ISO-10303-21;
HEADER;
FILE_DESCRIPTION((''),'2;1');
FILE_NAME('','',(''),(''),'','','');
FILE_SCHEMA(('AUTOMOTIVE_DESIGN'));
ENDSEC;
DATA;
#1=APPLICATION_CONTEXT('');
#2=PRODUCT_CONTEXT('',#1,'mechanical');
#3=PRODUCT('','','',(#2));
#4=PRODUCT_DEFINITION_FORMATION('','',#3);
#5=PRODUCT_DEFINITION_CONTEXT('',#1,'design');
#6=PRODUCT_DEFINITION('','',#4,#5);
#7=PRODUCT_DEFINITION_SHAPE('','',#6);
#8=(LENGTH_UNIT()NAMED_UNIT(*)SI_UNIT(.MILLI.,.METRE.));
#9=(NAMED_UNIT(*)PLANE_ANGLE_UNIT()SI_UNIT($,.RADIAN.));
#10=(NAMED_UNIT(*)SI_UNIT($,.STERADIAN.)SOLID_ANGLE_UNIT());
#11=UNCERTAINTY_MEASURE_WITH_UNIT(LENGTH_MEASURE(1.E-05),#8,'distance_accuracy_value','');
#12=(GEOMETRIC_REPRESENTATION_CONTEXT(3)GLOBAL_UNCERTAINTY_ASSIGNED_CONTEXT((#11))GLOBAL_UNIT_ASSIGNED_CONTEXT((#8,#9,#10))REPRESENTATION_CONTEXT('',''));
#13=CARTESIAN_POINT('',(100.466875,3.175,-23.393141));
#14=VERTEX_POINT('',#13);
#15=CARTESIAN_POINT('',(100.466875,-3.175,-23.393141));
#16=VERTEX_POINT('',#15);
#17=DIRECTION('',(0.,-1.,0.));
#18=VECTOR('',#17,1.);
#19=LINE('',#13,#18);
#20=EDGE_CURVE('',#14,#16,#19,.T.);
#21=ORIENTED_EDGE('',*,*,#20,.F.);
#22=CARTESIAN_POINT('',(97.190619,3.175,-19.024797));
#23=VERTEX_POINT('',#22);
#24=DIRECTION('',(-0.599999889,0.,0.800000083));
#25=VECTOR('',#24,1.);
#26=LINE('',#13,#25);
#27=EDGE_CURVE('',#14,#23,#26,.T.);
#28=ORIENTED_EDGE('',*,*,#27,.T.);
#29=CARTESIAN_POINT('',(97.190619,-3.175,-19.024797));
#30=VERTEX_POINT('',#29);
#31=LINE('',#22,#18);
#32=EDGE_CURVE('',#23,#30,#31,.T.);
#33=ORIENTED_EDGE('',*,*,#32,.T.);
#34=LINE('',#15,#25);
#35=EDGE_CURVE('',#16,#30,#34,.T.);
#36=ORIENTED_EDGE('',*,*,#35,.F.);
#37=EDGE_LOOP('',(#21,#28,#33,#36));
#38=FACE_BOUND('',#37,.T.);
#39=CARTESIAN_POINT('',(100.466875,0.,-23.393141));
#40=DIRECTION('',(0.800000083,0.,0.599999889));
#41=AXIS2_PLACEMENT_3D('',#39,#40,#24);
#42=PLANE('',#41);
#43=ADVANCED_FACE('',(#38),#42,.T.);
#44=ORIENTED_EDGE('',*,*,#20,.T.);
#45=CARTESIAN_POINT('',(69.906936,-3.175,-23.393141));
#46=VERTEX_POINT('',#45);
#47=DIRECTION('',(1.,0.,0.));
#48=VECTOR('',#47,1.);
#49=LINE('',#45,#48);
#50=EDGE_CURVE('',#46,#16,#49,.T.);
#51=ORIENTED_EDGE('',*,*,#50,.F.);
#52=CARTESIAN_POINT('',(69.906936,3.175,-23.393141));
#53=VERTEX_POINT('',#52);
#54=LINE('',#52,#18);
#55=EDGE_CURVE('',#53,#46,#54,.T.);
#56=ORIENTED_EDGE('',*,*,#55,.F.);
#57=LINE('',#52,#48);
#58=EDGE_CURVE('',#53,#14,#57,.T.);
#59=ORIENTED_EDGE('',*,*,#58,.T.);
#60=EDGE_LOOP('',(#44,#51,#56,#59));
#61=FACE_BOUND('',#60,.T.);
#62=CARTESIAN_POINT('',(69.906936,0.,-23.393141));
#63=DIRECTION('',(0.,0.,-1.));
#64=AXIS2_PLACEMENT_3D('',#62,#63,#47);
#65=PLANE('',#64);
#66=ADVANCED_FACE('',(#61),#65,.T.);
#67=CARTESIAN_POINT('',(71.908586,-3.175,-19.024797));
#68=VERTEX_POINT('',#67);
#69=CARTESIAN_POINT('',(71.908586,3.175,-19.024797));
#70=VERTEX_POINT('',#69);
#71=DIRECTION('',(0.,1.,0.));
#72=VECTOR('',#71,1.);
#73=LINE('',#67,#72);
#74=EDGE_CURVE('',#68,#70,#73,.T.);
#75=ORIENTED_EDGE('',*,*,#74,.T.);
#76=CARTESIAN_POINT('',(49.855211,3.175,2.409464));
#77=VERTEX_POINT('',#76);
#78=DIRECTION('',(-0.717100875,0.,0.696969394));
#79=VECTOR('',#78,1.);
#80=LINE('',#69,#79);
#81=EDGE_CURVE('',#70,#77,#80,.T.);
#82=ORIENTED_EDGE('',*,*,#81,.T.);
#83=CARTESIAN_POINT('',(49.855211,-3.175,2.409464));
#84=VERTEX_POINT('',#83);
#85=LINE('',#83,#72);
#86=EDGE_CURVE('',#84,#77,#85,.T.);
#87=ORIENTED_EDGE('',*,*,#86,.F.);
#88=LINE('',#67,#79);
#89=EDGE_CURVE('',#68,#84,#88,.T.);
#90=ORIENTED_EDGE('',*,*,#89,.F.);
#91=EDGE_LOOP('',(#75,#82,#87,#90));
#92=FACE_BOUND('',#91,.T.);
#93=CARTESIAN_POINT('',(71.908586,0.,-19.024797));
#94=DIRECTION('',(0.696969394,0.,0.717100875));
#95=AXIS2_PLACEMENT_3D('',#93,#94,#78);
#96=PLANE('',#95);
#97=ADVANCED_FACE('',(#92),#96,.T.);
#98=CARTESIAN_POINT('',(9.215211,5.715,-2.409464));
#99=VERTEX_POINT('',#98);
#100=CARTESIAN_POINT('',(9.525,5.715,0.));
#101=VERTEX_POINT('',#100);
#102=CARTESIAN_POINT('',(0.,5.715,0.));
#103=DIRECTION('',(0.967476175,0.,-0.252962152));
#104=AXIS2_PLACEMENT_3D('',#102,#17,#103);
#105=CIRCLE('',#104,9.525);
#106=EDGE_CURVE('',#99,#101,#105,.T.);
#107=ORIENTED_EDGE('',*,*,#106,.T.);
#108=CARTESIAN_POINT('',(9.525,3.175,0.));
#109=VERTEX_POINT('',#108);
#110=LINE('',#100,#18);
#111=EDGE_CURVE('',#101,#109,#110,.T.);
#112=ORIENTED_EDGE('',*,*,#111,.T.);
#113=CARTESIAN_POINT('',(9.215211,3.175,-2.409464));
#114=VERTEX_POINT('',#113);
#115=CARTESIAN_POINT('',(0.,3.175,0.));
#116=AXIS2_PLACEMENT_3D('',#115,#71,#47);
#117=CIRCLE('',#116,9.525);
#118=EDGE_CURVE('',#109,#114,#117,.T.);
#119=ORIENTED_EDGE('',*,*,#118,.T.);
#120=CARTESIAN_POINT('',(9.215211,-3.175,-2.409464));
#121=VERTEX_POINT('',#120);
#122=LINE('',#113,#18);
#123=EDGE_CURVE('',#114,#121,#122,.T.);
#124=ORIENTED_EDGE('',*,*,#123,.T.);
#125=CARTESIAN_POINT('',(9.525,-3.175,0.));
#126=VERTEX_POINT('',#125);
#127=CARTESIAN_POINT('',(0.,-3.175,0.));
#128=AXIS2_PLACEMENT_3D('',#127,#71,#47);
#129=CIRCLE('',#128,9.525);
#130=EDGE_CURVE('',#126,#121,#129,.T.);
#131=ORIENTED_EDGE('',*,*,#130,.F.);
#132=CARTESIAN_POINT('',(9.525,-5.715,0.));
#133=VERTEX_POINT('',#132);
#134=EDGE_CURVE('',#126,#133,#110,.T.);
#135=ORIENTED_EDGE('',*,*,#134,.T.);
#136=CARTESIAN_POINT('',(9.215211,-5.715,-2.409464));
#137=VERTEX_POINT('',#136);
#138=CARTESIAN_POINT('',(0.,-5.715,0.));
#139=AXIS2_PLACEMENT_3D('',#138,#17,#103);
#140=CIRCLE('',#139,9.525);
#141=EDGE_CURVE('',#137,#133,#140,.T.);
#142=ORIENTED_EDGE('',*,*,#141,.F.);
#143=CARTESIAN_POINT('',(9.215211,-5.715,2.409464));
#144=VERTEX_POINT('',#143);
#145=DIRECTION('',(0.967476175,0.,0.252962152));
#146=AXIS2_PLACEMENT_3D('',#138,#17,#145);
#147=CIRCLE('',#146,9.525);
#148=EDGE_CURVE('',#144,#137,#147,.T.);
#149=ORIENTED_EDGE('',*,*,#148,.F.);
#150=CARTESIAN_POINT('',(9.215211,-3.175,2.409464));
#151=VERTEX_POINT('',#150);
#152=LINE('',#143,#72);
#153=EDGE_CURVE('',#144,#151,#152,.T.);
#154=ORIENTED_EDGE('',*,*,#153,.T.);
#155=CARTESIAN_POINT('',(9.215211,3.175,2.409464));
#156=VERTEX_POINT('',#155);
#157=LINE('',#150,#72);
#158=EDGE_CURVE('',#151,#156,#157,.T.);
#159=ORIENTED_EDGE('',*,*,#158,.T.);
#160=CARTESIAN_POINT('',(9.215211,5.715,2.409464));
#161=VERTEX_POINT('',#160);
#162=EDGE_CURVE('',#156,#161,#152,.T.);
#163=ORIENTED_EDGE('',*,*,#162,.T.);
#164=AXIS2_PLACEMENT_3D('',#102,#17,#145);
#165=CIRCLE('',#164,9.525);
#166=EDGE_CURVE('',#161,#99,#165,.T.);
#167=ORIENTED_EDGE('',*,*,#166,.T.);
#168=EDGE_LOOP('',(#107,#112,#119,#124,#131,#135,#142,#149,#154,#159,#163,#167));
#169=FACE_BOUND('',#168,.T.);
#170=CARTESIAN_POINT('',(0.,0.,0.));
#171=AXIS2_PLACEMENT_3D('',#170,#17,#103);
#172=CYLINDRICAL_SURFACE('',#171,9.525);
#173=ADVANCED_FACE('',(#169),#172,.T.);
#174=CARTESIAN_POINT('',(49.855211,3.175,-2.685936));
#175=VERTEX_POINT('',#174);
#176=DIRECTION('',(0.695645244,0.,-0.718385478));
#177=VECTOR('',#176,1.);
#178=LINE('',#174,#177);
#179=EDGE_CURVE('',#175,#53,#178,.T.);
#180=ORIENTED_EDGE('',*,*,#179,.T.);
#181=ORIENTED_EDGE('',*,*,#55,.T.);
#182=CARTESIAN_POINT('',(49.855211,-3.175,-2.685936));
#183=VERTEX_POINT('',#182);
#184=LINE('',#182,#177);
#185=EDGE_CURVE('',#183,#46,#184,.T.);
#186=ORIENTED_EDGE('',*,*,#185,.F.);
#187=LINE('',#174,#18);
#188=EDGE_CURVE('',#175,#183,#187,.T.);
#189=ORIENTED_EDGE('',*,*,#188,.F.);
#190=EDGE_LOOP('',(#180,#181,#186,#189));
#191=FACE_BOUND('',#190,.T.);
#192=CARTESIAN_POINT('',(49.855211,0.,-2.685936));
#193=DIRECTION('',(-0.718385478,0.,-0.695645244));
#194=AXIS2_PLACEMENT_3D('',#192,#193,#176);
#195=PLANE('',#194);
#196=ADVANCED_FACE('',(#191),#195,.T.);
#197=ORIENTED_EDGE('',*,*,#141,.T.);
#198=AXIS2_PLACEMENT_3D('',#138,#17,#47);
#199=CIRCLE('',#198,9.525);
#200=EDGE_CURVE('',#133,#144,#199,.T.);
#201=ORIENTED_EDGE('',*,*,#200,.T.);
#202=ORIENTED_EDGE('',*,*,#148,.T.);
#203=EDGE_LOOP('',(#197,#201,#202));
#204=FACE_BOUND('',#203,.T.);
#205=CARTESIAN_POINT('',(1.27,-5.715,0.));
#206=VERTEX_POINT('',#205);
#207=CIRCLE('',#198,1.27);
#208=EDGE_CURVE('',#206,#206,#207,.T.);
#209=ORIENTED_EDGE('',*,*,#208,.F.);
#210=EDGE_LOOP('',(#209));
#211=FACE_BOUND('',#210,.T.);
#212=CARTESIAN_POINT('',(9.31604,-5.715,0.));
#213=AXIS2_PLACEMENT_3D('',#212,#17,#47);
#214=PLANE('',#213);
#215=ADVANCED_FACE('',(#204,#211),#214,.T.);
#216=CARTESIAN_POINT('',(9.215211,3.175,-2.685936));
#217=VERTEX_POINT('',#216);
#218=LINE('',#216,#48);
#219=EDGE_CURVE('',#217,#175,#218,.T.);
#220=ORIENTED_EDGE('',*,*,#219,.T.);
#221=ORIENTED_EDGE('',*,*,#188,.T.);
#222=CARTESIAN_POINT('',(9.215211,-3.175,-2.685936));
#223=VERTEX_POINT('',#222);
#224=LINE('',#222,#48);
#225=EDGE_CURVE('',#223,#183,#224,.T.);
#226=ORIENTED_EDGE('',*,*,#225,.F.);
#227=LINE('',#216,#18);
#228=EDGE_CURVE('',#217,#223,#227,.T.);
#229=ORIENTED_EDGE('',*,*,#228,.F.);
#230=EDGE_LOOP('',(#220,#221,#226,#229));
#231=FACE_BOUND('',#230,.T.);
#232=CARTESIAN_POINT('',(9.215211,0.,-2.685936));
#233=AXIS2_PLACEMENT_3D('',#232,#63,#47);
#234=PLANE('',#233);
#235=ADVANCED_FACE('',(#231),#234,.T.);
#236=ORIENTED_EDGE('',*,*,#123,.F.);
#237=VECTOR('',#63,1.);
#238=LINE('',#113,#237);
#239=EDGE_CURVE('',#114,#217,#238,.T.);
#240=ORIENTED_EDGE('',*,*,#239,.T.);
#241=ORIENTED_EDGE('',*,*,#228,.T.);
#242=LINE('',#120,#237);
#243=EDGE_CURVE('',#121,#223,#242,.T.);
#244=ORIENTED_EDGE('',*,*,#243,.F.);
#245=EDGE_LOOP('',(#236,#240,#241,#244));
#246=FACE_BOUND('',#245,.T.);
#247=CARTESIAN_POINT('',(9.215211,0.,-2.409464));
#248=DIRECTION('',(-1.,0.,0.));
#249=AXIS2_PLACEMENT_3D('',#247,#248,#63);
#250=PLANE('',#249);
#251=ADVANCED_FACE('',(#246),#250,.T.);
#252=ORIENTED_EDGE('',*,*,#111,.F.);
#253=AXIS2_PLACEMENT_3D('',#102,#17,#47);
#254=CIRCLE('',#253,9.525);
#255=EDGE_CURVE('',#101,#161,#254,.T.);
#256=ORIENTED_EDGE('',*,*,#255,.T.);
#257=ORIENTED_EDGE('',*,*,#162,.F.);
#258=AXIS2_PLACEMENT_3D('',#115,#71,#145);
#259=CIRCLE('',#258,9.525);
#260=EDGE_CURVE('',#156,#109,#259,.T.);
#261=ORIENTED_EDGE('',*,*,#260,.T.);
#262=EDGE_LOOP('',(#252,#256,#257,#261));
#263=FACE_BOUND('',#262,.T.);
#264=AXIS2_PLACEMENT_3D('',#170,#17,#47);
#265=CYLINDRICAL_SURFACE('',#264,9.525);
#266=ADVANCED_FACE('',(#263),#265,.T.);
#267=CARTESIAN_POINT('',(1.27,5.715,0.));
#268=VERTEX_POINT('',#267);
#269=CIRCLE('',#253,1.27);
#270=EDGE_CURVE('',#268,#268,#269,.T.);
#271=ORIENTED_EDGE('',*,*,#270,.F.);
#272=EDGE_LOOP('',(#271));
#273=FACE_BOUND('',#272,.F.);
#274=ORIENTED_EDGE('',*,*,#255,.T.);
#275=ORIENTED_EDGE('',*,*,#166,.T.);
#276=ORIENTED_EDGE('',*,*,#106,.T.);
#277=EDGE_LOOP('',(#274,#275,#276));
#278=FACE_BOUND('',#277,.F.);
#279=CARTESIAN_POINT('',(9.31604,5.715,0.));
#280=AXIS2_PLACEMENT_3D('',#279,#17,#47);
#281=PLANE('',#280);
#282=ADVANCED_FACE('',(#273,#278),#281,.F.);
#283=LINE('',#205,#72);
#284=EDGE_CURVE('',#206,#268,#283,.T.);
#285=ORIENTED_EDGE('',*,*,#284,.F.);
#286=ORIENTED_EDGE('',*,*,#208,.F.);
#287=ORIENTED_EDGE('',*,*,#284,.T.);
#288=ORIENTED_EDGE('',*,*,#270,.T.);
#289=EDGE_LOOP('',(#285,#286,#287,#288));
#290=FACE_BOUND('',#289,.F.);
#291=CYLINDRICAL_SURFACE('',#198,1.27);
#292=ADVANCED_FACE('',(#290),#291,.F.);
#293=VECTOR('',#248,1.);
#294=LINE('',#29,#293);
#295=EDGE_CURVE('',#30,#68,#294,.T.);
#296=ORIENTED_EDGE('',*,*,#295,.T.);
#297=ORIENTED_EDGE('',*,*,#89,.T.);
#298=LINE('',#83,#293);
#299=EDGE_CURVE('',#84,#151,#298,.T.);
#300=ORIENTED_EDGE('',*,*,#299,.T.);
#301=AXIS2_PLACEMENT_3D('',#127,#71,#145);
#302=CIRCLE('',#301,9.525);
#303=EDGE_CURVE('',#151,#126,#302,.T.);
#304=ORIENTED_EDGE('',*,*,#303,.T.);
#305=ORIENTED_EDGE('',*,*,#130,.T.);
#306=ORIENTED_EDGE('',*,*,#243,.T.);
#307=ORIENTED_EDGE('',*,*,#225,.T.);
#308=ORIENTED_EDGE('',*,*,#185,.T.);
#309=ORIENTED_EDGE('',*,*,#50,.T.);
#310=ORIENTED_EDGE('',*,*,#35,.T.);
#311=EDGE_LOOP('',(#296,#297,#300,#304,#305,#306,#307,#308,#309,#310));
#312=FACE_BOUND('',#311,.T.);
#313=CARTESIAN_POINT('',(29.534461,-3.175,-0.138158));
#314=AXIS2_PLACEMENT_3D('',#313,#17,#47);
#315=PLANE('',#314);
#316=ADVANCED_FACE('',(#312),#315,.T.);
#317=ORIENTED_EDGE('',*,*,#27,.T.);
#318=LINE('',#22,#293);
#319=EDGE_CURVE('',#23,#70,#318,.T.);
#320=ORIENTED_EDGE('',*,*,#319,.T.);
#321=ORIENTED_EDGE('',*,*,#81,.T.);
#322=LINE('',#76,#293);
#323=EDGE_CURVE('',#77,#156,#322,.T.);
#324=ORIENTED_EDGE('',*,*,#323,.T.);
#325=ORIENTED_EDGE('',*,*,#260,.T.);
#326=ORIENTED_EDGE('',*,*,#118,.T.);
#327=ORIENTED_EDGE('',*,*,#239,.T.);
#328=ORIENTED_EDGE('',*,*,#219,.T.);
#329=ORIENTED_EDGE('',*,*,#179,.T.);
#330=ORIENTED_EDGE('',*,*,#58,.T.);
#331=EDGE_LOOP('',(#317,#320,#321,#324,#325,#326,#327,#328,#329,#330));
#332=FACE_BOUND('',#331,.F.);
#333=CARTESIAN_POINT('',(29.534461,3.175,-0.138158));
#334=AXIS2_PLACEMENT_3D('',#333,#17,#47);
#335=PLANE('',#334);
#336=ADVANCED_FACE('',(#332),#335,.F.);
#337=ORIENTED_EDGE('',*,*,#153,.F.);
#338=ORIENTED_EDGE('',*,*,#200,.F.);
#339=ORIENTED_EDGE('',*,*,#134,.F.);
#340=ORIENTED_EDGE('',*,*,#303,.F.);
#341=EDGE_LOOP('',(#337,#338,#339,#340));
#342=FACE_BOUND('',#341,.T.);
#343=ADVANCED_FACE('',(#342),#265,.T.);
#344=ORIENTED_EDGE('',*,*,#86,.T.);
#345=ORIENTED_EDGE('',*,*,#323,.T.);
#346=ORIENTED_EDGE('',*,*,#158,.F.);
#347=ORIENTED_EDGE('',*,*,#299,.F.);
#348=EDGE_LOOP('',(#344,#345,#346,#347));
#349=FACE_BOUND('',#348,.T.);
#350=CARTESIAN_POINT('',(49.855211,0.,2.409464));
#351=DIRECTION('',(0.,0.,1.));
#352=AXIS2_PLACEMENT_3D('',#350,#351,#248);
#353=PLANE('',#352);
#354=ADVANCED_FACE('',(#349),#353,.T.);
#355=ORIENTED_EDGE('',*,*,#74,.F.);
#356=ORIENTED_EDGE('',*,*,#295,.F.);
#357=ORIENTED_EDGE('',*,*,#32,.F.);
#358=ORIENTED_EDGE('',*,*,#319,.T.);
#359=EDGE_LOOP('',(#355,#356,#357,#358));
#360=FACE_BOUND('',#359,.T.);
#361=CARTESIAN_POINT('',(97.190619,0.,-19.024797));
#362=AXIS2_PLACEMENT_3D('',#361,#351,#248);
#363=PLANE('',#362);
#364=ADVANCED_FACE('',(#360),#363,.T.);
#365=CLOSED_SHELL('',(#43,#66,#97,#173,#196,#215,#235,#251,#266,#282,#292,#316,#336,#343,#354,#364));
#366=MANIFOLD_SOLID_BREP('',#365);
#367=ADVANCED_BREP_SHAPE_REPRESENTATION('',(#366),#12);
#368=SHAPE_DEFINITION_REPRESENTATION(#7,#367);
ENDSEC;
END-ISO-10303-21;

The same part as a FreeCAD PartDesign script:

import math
import FreeCAD as App
import Part
import Sketcher

V = App.Vector
Q = App.Units.Quantity

doc = App.newDocument("Part")
body = doc.addObject("PartDesign::Body", "Body")

# Sketch on XZ plane
sketch1 = body.newObject("Sketcher::SketchObject", "Sketch")
sketch1.AttachmentSupport = (doc.getObject("XZ_Plane"), [""])
sketch1.MapMode = "FlatFace"
sketch1.addGeometry([
    Part.ArcOfCircle(Part.Circle(V(0, 0, 0), V(0, 0, 1), 9.525), math.radians(-14.652867), math.radians(0)),
    Part.ArcOfCircle(Part.Circle(V(0, 0, 0), V(0, 0, 1), 9.525), math.radians(0), math.radians(14.652867)),
    Part.ArcOfCircle(Part.Circle(V(0, 0, 0), V(0, 0, 1), 9.525), math.radians(14.652867), math.radians(345.347133)),
], False)
sketch1.addConstraint([
    Sketcher.Constraint("Tangent", 0, 2, 1, 1),
    Sketcher.Constraint("Tangent", 1, 2, 2, 1),
    Sketcher.Constraint("Tangent", 2, 2, 0, 1),
    Sketcher.Constraint("Coincident", 0, 3, -1, 1),
    Sketcher.Constraint("PointOnObject", 0, 2, -1),
    Sketcher.Constraint("Vertical", 1, 2, 2, 2),
    Sketcher.Constraint("Radius", 0, Q("0.375 in")),
    Sketcher.Constraint("DistanceX", -1, 1, 1, 2, Q("9.215211 mm")),
])
pad1 = body.newObject("PartDesign::Pad", "Pad")
pad1.Profile = sketch1
pad1.Length = Q("0.45 in")
pad1.Midplane = True

# Sketch on XZ plane
sketch2 = body.newObject("Sketcher::SketchObject", "Sketch001")
sketch2.AttachmentSupport = (doc.getObject("XZ_Plane"), [""])
sketch2.MapMode = "FlatFace"
sketch2.addGeometry([
    Part.ArcOfCircle(Part.Circle(V(0, 0, 0), V(0, 0, 1), 9.525), math.radians(0), math.radians(14.652867)),  # 0
    Part.ArcOfCircle(Part.Circle(V(0, 0, 0), V(0, 0, 1), 9.525), math.radians(-14.652867), math.radians(0)),  # 1
    Part.LineSegment(V(9.215211, -2.409464, 0), V(9.215211, -2.685936, 0)),  # 2
    Part.LineSegment(V(9.215211, -2.685936, 0), V(49.855211, -2.685936, 0)),  # 3
    Part.LineSegment(V(49.855211, -2.685936, 0), V(69.906936, -23.393141, 0)),  # 4
    Part.LineSegment(V(69.906936, -23.393141, 0), V(100.466875, -23.393141, 0)),  # 5
    Part.LineSegment(V(100.466875, -23.393141, 0), V(97.190619, -19.024797, 0)),  # 6
    Part.LineSegment(V(97.190619, -19.024797, 0), V(71.908586, -19.024797, 0)),  # 7
    Part.LineSegment(V(71.908586, -19.024797, 0), V(49.855211, 2.409464, 0)),  # 8
    Part.LineSegment(V(49.855211, 2.409464, 0), V(9.215211, 2.409464, 0)),  # 9
], False)
sketch2.addConstraint([
    Sketcher.Constraint("Tangent", 0, 1, 1, 2),
    Sketcher.Constraint("Coincident", 1, 1, 2, 1),
    Sketcher.Constraint("Coincident", 2, 2, 3, 1),
    Sketcher.Constraint("Coincident", 3, 2, 4, 1),
    Sketcher.Constraint("Coincident", 4, 2, 5, 1),
    Sketcher.Constraint("Coincident", 5, 2, 6, 1),
    Sketcher.Constraint("Coincident", 6, 2, 7, 1),
    Sketcher.Constraint("Coincident", 7, 2, 8, 1),
    Sketcher.Constraint("Coincident", 8, 2, 9, 1),
    Sketcher.Constraint("Coincident", 9, 2, 0, 2),
    Sketcher.Constraint("Vertical", 2),
    Sketcher.Constraint("Horizontal", 3),
    Sketcher.Constraint("Horizontal", 5),
    Sketcher.Constraint("Horizontal", 7),
    Sketcher.Constraint("Horizontal", 9),
    Sketcher.Constraint("Coincident", 0, 3, -1, 1),
    Sketcher.Constraint("Equal", 0, 1),
    Sketcher.Constraint("PointOnObject", 0, 1, -1),
    Sketcher.Constraint("Vertical", 3, 2, 8, 2),
    Sketcher.Constraint("Vertical", 2, 2, 9, 2),
    Sketcher.Constraint("DistanceX", 3, 1, 3, 2, Q("1.6 in")),
    Sketcher.Constraint("Radius", 0, Q("0.375 in")),
    Sketcher.Constraint("DistanceX", 5, 1, 5, 2, Q("30.559939 mm")),
    Sketcher.Constraint("DistanceY", 2, 2, 2, 1, Q("0.276471 mm")),
    Sketcher.Constraint("DistanceY", 3, 2, 8, 2, Q("5.0954 mm")),
    Sketcher.Constraint("Distance", 6, Q("5.460429 mm")),
    Sketcher.Constraint("Distance", 8, Q("30.753519 mm")),
    Sketcher.Constraint("DistanceX", 7, 2, 7, 1, Q("25.282033 mm")),
    Sketcher.Constraint("DistanceY", 4, 2, -1, 1, Q("23.393141 mm")),
    Sketcher.Constraint("DistanceX", -1, 1, 6, 2, Q("97.190619 mm")),
])
pad2 = body.newObject("PartDesign::Pad", "Pad001")
pad2.Profile = sketch2
pad2.Length = Q("0.25 in")
pad2.Midplane = True

# Sketch on XZ plane
sketch3 = body.newObject("Sketcher::SketchObject", "Sketch002")
sketch3.AttachmentSupport = (doc.getObject("XZ_Plane"), [""])
sketch3.MapMode = "FlatFace"
sketch3.AttachmentOffset = App.Placement(V(0, 0, 0.225 * 25.4), App.Rotation())
sketch3.addGeometry(Part.Circle(V(0, 0, 0), V(0, 0, 1), 1.27), False)
sketch3.addConstraint([
    Sketcher.Constraint("Coincident", 0, 3, -1, 1),
    Sketcher.Constraint("Diameter", 0, Q("0.1 in")),
])
pocket1 = body.newObject("PartDesign::Pocket", "Pocket")
pocket1.Profile = sketch3
pocket1.Length = Q("1 in")

doc.recompute()
